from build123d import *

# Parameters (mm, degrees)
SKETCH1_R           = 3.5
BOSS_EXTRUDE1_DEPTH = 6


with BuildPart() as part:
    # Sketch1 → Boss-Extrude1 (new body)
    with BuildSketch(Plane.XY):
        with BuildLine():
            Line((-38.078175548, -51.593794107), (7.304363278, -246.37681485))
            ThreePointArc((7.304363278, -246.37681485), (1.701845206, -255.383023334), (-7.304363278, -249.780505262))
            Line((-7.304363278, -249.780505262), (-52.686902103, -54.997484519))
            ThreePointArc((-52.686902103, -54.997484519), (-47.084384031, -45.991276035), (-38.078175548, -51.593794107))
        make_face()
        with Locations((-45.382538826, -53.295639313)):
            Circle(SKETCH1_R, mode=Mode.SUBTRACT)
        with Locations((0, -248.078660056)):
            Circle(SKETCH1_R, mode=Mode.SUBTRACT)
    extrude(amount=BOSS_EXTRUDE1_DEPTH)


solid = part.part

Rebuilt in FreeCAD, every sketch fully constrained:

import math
import FreeCAD as App
import Part
import Sketcher
from FreeCAD import Vector

doc = App.newDocument("Part")
body = doc.addObject("PartDesign::Body", "Body")

sketch1 = doc.addObject("Sketcher::SketchObject", "Sketch")
body.addObject(sketch1)
sketch1.AttachmentSupport = (doc.XY_Plane, [""])
sketch1.MapMode = "FlatFace"
sketch1.addGeometry([
    Part.LineSegment(Vector(7.304363, -246.376815, 0), Vector(-38.078176, -51.593794, 0)),
    Part.ArcOfCircle(Part.Circle(Vector(-45.382539, -53.295639, 0), Vector(0, 0, 1), 7.5), math.radians(13.115377), math.radians(193.115377)),
    Part.LineSegment(Vector(-52.686902, -54.997485, 0), Vector(-7.304363, -249.780505, 0)),
    Part.ArcOfCircle(Part.Circle(Vector(0, -248.07866, 0), Vector(0, 0, 1), 7.5), math.radians(-166.884623), math.radians(13.115377)),
    Part.Circle(Vector(0, -248.07866, 0), Vector(0, 0, 1), 3.5),
    Part.Circle(Vector(-45.382539, -53.295639, 0), Vector(0, 0, 1), 3.5),
], False)
sketch1.addConstraint([
    Sketcher.Constraint("Tangent", 0, 2, 1, 1),
    Sketcher.Constraint("Tangent", 1, 2, 2, 1),
    Sketcher.Constraint("Tangent", 2, 2, 3, 1),
    Sketcher.Constraint("Tangent", 3, 2, 0, 1),
    Sketcher.Constraint("Coincident", 4, 3, 3, 3),
    Sketcher.Constraint("Coincident", 5, 3, 1, 3),
    Sketcher.Constraint("Equal", 1, 3),
    Sketcher.Constraint("Equal", 4, 5),
    Sketcher.Constraint("PointOnObject", 3, 3, -2),
    Sketcher.Constraint("Diameter", 4, 7.0),
    Sketcher.Constraint("Radius", 1, 7.5),
    Sketcher.Constraint("Distance", 0, 200.0),
    Sketcher.Constraint("DistanceX", 1, 3, -1, 1, 45.382539),
    Sketcher.Constraint("DistanceY", 1, 3, -1, 1, 53.295639),
])
pad1 = doc.addObject("PartDesign::Pad", "Pad")
body.addObject(pad1)
pad1.Profile = sketch1
pad1.Length = 6

doc.recompute()
